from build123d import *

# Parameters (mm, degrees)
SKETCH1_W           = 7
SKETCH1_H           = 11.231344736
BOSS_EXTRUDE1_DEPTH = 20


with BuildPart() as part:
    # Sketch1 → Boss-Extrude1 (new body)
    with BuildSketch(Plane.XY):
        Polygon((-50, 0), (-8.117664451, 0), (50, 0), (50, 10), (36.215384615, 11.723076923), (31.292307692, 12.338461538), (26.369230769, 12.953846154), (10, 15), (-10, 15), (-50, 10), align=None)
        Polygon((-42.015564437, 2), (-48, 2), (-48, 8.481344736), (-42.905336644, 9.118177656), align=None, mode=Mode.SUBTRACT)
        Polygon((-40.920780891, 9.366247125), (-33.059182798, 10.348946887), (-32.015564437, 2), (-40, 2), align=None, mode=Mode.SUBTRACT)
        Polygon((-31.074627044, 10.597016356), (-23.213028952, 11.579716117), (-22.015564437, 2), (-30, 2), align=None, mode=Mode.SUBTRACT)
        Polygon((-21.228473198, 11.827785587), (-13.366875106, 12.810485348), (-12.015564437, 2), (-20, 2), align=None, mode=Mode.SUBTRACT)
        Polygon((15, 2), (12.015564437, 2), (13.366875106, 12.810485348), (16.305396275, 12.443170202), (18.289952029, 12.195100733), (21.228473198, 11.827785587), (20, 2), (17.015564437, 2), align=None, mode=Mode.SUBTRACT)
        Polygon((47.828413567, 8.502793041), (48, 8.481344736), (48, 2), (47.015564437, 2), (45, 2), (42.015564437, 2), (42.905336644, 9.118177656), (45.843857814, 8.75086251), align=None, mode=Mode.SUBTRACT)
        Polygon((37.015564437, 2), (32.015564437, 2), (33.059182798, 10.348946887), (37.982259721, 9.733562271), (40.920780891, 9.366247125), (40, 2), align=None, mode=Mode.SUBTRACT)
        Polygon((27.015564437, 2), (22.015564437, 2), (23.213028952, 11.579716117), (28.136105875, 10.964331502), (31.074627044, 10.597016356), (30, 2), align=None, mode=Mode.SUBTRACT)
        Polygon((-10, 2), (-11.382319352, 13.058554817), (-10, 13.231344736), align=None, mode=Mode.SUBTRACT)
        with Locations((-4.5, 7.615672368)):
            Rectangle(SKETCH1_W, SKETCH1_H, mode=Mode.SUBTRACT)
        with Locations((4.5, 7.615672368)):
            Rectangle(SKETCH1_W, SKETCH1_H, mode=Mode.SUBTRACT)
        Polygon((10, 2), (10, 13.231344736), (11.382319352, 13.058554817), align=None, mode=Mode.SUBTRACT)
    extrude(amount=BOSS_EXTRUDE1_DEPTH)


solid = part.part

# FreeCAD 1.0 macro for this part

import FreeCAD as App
import Part
import Sketcher
from FreeCAD import Vector


def add_polygon(sketch, points):
    """Adds a closed chain of lines whose ends are joined by coincident constraints."""
    first, n = sketch.GeometryCount, len(points)
    for a, b in zip(points, points[1:] + points[:1]):
        sketch.addGeometry(Part.LineSegment(App.Vector(*a, 0), App.Vector(*b, 0)), False)
    for i in range(n):
        sketch.addConstraint(Sketcher.Constraint("Coincident", first + i, 2, first + (i + 1) % n, 1))

doc = App.newDocument("Part")
params = doc.addObject("Spreadsheet::Sheet", "Params")
for row, (alias, value) in enumerate([
    ("sketch1_width", "100 mm"),
    ("sketch1_width2", "20 mm"),
    ("sketch1_width3", "7 mm"),
    ("sketch1_height", "10 mm"),
    ("sketch1_length", "2 mm"),
    ("pad1_length", "20 mm"),
], start=1):
    params.set(f"A{row}", alias)
    params.set(f"B{row}", "=" + value)
    params.setAlias(f"B{row}", alias)

body = doc.addObject("PartDesign::Body", "Body")

# Sketch on XY plane
sketch1 = doc.addObject("Sketcher::SketchObject", "Sketch")
body.addObject(sketch1)
sketch1.AttachmentSupport = (doc.XY_Plane, [""])
sketch1.MapMode = "FlatFace"
add_polygon(sketch1, [(-50, 0), (50, 0), (50, 10), (36.22, 11.72), (31.29, 12.34), (26.37, 12.95), (10, 15), (-10, 15), (-50, 10)])  # lines 0-8
add_polygon(sketch1, [(-42.91, 9.12), (-42.02, 2), (-48, 2), (-48, 8.48)])  # lines 9-12
add_polygon(sketch1, [(-40, 2), (-40.92, 9.37), (-33.06, 10.35), (-32.02, 2)])  # lines 13-16
add_polygon(sketch1, [(-30, 2), (-31.07, 10.6), (-23.21, 11.58), (-22.02, 2)])  # lines 17-20
add_polygon(sketch1, [(-20, 2), (-21.23, 11.83), (-13.37, 12.81), (-12.02, 2)])  # lines 21-24
add_polygon(sketch1, [(20, 2), (12.02, 2), (13.37, 12.81), (16.31, 12.44), (18.29, 12.2), (21.23, 11.83)])  # lines 25-30
add_polygon(sketch1, [(40, 2), (32.02, 2), (33.06, 10.35), (37.98, 9.73), (40.92, 9.37)])  # lines 31-35
add_polygon(sketch1, [(45.84, 8.75), (47.83, 8.5), (48, 8.48), (48, 2), (42.02, 2), (42.91, 9.12)])  # lines 36-41
add_polygon(sketch1, [(30, 2), (22.02, 2), (23.21, 11.58), (28.14, 10.96), (31.07, 10.6)])  # lines 42-46
add_polygon(sketch1, [(-10, 13.23), (-10, 2), (-11.38, 13.06)])  # lines 47-49
add_polygon(sketch1, [(-1, 2), (-8, 2), (-8, 13.23), (-1, 13.23)])  # lines 50-53
add_polygon(sketch1, [(8, 2), (1, 2), (1, 13.23), (8, 13.23)])  # lines 54-57
add_polygon(sketch1, [(11.38, 13.06), (10, 2), (10, 13.23)])  # lines 58-60
sketch1.addConstraint([
    Sketcher.Constraint("Horizontal", 0),
    Sketcher.Constraint("Vertical", 1),
    Sketcher.Constraint("Horizontal", 6),
    Sketcher.Constraint("Vertical", 8),
    Sketcher.Constraint("Horizontal", 10),
    Sketcher.Constraint("Vertical", 11),
    Sketcher.Constraint("Horizontal", 16),
    Sketcher.Constraint("Horizontal", 20),
    Sketcher.Constraint("Horizontal", 24),
    Sketcher.Constraint("Horizontal", 25),
    Sketcher.Constraint("Horizontal", 31),
    Sketcher.Constraint("Vertical", 38),
    Sketcher.Constraint("Horizontal", 39),
    Sketcher.Constraint("Horizontal", 42),
    Sketcher.Constraint("Vertical", 47),
    Sketcher.Constraint("Horizontal", 50),
    Sketcher.Constraint("Vertical", 51),
    Sketcher.Constraint("Horizontal", 52),
    Sketcher.Constraint("Vertical", 53),
    Sketcher.Constraint("Horizontal", 54),
    Sketcher.Constraint("Vertical", 55),
    Sketcher.Constraint("Horizontal", 56),
    Sketcher.Constraint("Vertical", 57),
    Sketcher.Constraint("Vertical", 59),
    Sketcher.Constraint("Symmetric", 0, 2, 8, 2, -1, 1),
    Sketcher.Constraint("Symmetric", 23, 2, 25, 2, -2),
    Sketcher.Constraint("Symmetric", 22, 2, 26, 2, -2),
    Sketcher.Constraint("Symmetric", 21, 2, 29, 2, -2),
    Sketcher.Constraint("Symmetric", 15, 2, 31, 2, -2),
    Sketcher.Constraint("Symmetric", 14, 2, 32, 2, -2),
    Sketcher.Constraint("Symmetric", 13, 2, 34, 2, -2),
    Sketcher.Constraint("Symmetric", 11, 2, 37, 2, -2),
    Sketcher.Constraint("Symmetric", 9, 2, 39, 2, -2),
    Sketcher.Constraint("Symmetric", 12, 2, 40, 2, -2),
    Sketcher.Constraint("Symmetric", 19, 2, 42, 2, -2),
    Sketcher.Constraint("Symmetric", 18, 2, 43, 2, -2),
    Sketcher.Constraint("Symmetric", 17, 2, 45, 2, -2),
    Sketcher.Constraint("Symmetric", 53, 2, 54, 2, -2),
    Sketcher.Constraint("Symmetric", 51, 2, 56, 2, -2),
    Sketcher.Constraint("Symmetric", 47, 2, 58, 2, -2),
    Sketcher.Constraint("Symmetric", 48, 2, 60, 2, -2),
    Sketcher.Constraint("Parallel", 2, 3),
    Sketcher.Constraint("Parallel", 3, 4),
    Sketcher.Constraint("Parallel", 4, 5),
    Sketcher.Constraint("Perpendicular", 7, 9),
    Sketcher.Constraint("Perpendicular", 9, 12),
    Sketcher.Constraint("Perpendicular", 12, 13),
    Sketcher.Constraint("Perpendicular", 13, 14),
    Sketcher.Constraint("Perpendicular", 14, 15),
    Sketcher.Constraint("Parallel", 15, 17),
    Sketcher.Constraint("Perpendicular", 17, 18),
    Sketcher.Constraint("Perpendicular", 18, 19),
    Sketcher.Constraint("Parallel", 19, 21),
    Sketcher.Constraint("Perpendicular", 21, 22),
    Sketcher.Constraint("Perpendicular", 22, 23),
    Sketcher.Constraint("Perpendicular", 5, 26),
    Sketcher.Constraint("Perpendicular", 26, 27),
    Sketcher.Constraint("Parallel", 27, 28),
    Sketcher.Constraint("Perpendicular", 29, 30),
    Sketcher.Constraint("Perpendicular", 32, 33),
    Sketcher.Constraint("Perpendicular", 34, 35),
    Sketcher.Constraint("Perpendicular", 35, 36),
    Sketcher.Constraint("Parallel", 36, 37),
    Sketcher.Constraint("Perpendicular", 43, 44),
    Sketcher.Constraint("Perpendicular", 45, 46),
    Sketcher.Constraint("Parallel", 23, 48),
    Sketcher.Constraint("Perpendicular", 48, 49),
    Sketcher.Constraint("Perpendicular", 58, 60),
    Sketcher.Constraint("Horizontal", 1, 2, 7, 2),
    Sketcher.Constraint("Horizontal", 10, 2, 15, 2),
    Sketcher.Constraint("Horizontal", 16, 2, 19, 2),
    Sketcher.Constraint("Horizontal", 20, 2, 23, 2),
    Sketcher.Constraint("Horizontal", 46, 2, 47, 2),
    Sketcher.Constraint("Horizontal", 47, 2, 50, 2),
    Sketcher.Constraint("Horizontal", 49, 2, 51, 2),
    Sketcher.Constraint("Vertical", 6, 2, 47, 2),
    Sketcher.Constraint("Equal", 16, 20),
    Sketcher.Constraint("Equal", 20, 24),
    Sketcher.Constraint("Equal", 3, 4),
    Sketcher.Constraint("Equal", 27, 29),
    Sketcher.Constraint("Equal", 4, 33),
    Sketcher.Constraint("Equal", 29, 34),
    Sketcher.Constraint("Equal", 28, 36),
    Sketcher.Constraint("Equal", 34, 41),
    Sketcher.Constraint("Equal", 33, 44),
    Sketcher.Constraint("DistanceX", 0, 1, 0, 2, 100.0),
    Sketcher.Constraint("DistanceX", 6, 2, 6, 1, 20.0),
    Sketcher.Constraint("DistanceX", 50, 2, 50, 1, 7.0),
    Sketcher.Constraint("DistanceY", 1, 1, 1, 2, 10.0),
    Sketcher.Constraint("Distance", 28, 2.0),
    Sketcher.Constraint("DistanceY", -1, 1, 5, 2, 15.0),
    Sketcher.Constraint("DistanceY", -1, 1, 9, 2, 2.0),
    Sketcher.Constraint("DistanceX", 10, 2, -1, 1, 48.0),
    Sketcher.Constraint("DistanceX", 16, 2, -1, 1, 40.0),
    Sketcher.Constraint("DistanceX", 20, 2, -1, 1, 30.0),
    Sketcher.Constraint("DistanceX", 24, 2, -1, 1, 20.0),
    Sketcher.Constraint("DistanceX", 50, 2, -1, 1, 8.0),
    Sketcher.Constraint("DistanceY", -1, 1, 28, 2, 12.195101),
    Sketcher.Constraint("Distance", 2, 13.89189),
    Sketcher.Constraint("Distance", 3, 4.961389),
    Sketcher.Constraint("Distance", 12, 5.134311),
    Sketcher.Constraint("Distance", 15, 8.41392),
    Sketcher.Constraint("Distance", 17, 8.66392),
    Sketcher.Constraint("DistanceX", 10, 2, 10, 1, 5.984436),
    Sketcher.Constraint("DistanceY", 47, 2, 47, 1, 11.231345),
])
sketch1.setExpression("Constraints[146]", "Params.sketch1_width")
sketch1.setExpression("Constraints[147]", "Params.sketch1_width2")
sketch1.setExpression("Constraints[148]", "Params.sketch1_width3")
sketch1.setExpression("Constraints[149]", "Params.sketch1_height")
sketch1.setExpression("Constraints[150]", "Params.sketch1_length")
pad1 = doc.addObject("PartDesign::Pad", "Pad")
body.addObject(pad1)
pad1.Profile = sketch1
pad1.setExpression("Length", "Params.pad1_length")

doc.recompute()
